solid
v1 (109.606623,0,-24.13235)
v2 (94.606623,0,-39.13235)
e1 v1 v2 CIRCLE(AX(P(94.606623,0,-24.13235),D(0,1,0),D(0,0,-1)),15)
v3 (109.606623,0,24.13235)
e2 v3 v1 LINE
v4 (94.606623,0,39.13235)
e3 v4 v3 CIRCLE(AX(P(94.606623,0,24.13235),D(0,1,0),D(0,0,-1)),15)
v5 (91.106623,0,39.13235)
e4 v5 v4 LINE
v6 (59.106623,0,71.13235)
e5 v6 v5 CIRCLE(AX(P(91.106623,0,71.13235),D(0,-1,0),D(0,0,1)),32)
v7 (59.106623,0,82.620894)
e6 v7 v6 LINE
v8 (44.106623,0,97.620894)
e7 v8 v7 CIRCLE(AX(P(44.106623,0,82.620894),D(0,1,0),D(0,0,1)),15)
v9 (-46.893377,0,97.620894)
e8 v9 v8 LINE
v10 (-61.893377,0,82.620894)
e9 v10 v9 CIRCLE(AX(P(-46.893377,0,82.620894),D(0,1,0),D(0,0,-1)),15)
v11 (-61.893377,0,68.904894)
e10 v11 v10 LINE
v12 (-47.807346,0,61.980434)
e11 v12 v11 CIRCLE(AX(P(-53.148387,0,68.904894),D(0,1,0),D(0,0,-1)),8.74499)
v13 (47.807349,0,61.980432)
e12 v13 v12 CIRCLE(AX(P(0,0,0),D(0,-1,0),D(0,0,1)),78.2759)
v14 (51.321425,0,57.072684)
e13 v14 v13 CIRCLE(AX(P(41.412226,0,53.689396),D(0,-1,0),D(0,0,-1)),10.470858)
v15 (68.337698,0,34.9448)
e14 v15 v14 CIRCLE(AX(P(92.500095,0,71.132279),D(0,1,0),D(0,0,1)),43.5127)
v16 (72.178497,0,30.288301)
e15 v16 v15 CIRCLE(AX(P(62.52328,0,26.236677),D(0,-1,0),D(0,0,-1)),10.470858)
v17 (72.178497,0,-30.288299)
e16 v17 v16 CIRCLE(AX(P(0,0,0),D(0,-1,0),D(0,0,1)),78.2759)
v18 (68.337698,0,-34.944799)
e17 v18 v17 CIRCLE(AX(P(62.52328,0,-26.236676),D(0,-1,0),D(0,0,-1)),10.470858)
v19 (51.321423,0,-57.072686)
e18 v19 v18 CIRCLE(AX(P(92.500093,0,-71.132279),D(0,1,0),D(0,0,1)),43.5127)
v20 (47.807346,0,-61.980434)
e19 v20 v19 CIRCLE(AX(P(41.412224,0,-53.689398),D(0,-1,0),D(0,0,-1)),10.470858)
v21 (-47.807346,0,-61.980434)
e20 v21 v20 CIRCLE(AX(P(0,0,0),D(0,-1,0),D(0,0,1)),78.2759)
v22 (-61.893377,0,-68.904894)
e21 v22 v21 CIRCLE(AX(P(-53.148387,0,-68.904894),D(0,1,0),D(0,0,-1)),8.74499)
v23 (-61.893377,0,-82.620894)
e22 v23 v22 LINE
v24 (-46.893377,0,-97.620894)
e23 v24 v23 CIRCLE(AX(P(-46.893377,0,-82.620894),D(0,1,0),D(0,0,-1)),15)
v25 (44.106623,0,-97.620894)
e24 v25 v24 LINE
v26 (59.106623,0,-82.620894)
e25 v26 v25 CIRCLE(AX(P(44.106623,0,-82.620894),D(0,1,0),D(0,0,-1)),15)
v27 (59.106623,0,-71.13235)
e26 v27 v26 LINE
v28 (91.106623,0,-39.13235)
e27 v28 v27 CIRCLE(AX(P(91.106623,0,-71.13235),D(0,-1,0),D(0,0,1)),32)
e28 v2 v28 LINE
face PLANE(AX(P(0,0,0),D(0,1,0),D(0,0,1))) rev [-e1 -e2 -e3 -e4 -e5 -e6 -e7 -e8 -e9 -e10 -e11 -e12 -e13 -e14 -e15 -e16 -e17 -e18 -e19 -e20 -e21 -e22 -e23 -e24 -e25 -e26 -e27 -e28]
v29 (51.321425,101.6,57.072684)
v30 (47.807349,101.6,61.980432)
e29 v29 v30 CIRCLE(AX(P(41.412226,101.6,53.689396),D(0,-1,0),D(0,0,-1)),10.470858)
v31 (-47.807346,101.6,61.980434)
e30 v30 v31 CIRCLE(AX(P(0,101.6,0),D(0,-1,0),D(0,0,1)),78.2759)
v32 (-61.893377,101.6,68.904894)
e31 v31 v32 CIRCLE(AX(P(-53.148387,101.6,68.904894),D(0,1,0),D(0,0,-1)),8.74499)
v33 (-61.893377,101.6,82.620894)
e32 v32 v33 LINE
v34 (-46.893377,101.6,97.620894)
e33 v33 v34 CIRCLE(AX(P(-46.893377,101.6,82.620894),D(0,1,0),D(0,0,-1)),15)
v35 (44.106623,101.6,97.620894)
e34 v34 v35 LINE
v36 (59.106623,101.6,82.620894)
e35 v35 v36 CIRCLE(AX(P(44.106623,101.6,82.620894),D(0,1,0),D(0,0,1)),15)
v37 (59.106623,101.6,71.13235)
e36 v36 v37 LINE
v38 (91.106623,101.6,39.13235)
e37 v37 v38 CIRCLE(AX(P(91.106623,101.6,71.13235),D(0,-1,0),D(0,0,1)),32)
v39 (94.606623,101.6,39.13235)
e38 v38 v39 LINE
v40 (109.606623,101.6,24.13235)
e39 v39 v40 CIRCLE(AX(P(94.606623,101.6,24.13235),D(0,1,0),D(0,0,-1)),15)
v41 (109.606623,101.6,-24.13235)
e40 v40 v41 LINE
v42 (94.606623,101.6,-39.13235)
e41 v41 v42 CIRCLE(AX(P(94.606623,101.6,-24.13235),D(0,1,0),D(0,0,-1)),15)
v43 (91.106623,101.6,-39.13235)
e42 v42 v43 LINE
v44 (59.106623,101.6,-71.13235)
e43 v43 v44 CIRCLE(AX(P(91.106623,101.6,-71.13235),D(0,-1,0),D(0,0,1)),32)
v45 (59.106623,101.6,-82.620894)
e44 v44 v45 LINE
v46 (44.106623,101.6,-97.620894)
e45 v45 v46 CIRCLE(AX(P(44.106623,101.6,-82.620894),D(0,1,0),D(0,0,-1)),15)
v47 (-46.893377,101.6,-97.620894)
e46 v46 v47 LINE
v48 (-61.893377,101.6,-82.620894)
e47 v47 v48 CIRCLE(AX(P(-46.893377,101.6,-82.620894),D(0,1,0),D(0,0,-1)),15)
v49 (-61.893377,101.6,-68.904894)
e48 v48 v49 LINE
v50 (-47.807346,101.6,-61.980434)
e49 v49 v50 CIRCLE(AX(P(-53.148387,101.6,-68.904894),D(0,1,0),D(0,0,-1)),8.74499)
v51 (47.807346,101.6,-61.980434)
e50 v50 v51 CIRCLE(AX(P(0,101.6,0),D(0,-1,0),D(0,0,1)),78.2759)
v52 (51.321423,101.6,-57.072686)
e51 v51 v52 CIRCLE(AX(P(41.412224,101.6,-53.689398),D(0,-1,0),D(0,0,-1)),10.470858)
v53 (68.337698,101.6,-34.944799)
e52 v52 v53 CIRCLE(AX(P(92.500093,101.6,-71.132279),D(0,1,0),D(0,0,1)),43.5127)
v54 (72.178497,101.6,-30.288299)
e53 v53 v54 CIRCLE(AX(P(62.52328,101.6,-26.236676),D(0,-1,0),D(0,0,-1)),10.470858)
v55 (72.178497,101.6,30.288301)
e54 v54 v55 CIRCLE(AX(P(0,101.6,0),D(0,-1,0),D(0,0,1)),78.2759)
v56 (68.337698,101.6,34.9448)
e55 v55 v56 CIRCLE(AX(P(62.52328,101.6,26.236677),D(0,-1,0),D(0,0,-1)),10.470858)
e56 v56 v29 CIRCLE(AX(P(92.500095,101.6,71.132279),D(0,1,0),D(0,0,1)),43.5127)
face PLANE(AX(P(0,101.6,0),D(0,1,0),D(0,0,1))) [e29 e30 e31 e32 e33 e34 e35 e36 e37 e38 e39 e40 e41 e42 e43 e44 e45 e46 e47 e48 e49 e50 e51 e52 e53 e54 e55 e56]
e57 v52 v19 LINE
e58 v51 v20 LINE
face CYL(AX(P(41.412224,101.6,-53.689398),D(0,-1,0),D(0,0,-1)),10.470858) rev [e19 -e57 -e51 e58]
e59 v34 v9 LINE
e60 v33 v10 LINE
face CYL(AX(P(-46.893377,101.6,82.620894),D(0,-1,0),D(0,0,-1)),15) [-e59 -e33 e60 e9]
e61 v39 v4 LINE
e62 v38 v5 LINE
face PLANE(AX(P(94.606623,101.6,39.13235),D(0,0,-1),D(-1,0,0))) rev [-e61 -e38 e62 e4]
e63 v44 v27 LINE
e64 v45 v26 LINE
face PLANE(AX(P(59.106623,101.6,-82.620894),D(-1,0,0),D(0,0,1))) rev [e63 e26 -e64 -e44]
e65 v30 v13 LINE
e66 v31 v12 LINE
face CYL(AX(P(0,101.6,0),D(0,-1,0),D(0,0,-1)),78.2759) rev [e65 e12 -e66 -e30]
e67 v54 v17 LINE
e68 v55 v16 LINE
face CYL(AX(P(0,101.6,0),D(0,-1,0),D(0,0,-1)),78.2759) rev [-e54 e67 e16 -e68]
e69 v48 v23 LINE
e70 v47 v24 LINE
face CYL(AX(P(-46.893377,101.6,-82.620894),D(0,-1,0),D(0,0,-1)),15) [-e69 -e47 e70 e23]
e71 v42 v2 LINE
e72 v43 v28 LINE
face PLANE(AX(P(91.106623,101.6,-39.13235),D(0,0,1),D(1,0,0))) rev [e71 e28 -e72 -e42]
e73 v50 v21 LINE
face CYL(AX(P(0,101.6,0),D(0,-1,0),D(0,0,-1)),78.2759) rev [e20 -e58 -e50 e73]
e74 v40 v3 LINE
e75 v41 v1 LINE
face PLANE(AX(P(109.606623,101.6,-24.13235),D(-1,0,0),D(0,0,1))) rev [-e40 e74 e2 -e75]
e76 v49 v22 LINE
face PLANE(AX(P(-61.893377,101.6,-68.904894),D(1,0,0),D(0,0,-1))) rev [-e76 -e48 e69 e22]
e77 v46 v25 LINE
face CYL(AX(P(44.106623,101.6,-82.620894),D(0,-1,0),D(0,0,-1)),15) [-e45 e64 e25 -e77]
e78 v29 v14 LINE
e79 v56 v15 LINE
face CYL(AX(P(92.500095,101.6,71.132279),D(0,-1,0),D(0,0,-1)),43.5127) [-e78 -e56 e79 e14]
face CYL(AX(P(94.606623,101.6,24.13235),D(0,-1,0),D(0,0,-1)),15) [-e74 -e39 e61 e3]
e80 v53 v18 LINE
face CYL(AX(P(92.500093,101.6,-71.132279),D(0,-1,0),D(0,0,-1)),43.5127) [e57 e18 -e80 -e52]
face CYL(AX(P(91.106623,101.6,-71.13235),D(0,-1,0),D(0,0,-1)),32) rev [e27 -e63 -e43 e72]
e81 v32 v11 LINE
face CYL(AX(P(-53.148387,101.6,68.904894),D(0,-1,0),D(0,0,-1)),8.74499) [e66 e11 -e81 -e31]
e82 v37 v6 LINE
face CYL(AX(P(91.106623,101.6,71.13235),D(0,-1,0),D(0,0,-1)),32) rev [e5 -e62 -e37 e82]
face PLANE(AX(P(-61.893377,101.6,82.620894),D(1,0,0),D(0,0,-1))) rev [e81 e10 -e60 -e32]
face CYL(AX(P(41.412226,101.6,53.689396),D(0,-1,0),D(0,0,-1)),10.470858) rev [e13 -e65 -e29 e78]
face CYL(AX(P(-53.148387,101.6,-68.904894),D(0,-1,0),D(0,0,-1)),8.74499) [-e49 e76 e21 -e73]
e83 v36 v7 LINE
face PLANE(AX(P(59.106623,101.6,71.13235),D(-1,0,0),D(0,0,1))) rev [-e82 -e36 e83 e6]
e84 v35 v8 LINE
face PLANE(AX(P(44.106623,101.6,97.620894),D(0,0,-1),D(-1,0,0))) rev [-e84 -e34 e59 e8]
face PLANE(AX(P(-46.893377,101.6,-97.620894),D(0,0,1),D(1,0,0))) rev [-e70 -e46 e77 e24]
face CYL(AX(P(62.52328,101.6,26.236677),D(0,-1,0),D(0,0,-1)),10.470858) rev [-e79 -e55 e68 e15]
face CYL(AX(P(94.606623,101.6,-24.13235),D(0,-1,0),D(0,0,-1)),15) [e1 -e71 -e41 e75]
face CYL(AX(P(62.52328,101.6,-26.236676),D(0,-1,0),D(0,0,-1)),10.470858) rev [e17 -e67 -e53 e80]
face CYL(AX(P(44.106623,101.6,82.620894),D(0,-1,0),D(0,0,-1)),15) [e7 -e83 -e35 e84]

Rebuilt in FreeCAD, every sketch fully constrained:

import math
import FreeCAD as App
import Part
import Sketcher
Q = App.Units.Quantity

doc = App.newDocument("Part")
body = doc.addObject("PartDesign::Body", "Body")

# Sketch on XZ plane
sketch1 = body.newObject("Sketcher::SketchObject", "Sketch")
sketch1.AttachmentSupport = (doc.getObject("XZ_Plane"), [""])
sketch1.MapMode = "FlatFace"
sketch1.addGeometry([
    Part.LineSegment(App.Vector(-61.893377, -82.620894, 0), App.Vector(-61.893377, -68.904894, 0)),  # 0
    Part.ArcOfCircle(Part.Circle(App.Vector(-53.148387, -68.904894, 0), App.Vector(0, 0, 1), 8.74499), math.radians(52.355933), math.radians(180)),  # 1
    Part.ArcOfCircle(Part.Circle(App.Vector(0, 0, 0), App.Vector(0, 0, 1), 78.2759), math.radians(-127.644067), math.radians(-52.355933)),  # 2
    Part.ArcOfCircle(Part.Circle(App.Vector(41.412224, -53.689398, 0), App.Vector(0, 0, 1), 10.470858), math.radians(-52.355933), math.radians(-18.851394)),  # 3
    Part.ArcOfCircle(Part.Circle(App.Vector(92.500093, -71.132279, 0), App.Vector(0, 0, 1), 43.5127), math.radians(123.731053), math.radians(161.148606)),  # 4
    Part.ArcOfCircle(Part.Circle(App.Vector(62.52328, -26.236676, 0), App.Vector(0, 0, 1), 10.470858), math.radians(-56.268947), math.radians(-22.764407)),  # 5
    Part.ArcOfCircle(Part.Circle(App.Vector(0, 0, 0), App.Vector(0, 0, 1), 78.2759), math.radians(-22.764407), math.radians(22.764408)),  # 6
    Part.ArcOfCircle(Part.Circle(App.Vector(62.52328, 26.236677, 0), App.Vector(0, 0, 1), 10.470858), math.radians(22.764409), math.radians(56.268944)),  # 7
    Part.ArcOfCircle(Part.Circle(App.Vector(92.500095, 71.132279, 0), App.Vector(0, 0, 1), 43.5127), math.radians(-161.148604), math.radians(-123.731056)),  # 8
    Part.ArcOfCircle(Part.Circle(App.Vector(41.412226, 53.689396, 0), App.Vector(0, 0, 1), 10.470858), math.radians(18.851396), math.radians(52.355931)),  # 9
    Part.ArcOfCircle(Part.Circle(App.Vector(0, 0, 0), App.Vector(0, 0, 1), 78.2759), math.radians(52.355931), math.radians(127.644067)),  # 10
    Part.ArcOfCircle(Part.Circle(App.Vector(-53.148387, 68.904894, 0), App.Vector(0, 0, 1), 8.74499), math.radians(180), math.radians(307.644067)),  # 11
    Part.LineSegment(App.Vector(-61.893377, 68.904894, 0), App.Vector(-61.893377, 82.620894, 0)),  # 12
    Part.ArcOfCircle(Part.Circle(App.Vector(-46.893377, 82.620894, 0), App.Vector(0, 0, 1), 15), math.radians(90), math.radians(180)),  # 13
    Part.LineSegment(App.Vector(-46.893377, 97.620894, 0), App.Vector(44.106623, 97.620894, 0)),  # 14
    Part.ArcOfCircle(Part.Circle(App.Vector(44.106623, 82.620894, 0), App.Vector(0, 0, 1), 15), math.radians(0), math.radians(90)),  # 15
    Part.LineSegment(App.Vector(59.106623, 82.620894, 0), App.Vector(59.106623, 71.13235, 0)),  # 16
    Part.ArcOfCircle(Part.Circle(App.Vector(91.106623, 71.13235, 0), App.Vector(0, 0, 1), 32), math.radians(180), math.radians(270)),  # 17
    Part.LineSegment(App.Vector(91.106623, 39.13235, 0), App.Vector(94.606623, 39.13235, 0)),  # 18
    Part.ArcOfCircle(Part.Circle(App.Vector(94.606623, 24.13235, 0), App.Vector(0, 0, 1), 15), math.radians(0), math.radians(90)),  # 19
    Part.LineSegment(App.Vector(109.606623, 24.13235, 0), App.Vector(109.606623, -24.13235, 0)),  # 20
    Part.ArcOfCircle(Part.Circle(App.Vector(94.606623, -24.13235, 0), App.Vector(0, 0, 1), 15), math.radians(-90), math.radians(0)),  # 21
    Part.LineSegment(App.Vector(94.606623, -39.13235, 0), App.Vector(91.106623, -39.13235, 0)),  # 22
    Part.ArcOfCircle(Part.Circle(App.Vector(91.106623, -71.13235, 0), App.Vector(0, 0, 1), 32), math.radians(90), math.radians(180)),  # 23
    Part.LineSegment(App.Vector(59.106623, -71.13235, 0), App.Vector(59.106623, -82.620894, 0)),  # 24
    Part.ArcOfCircle(Part.Circle(App.Vector(44.106623, -82.620894, 0), App.Vector(0, 0, 1), 15), math.radians(-90), math.radians(0)),  # 25
    Part.LineSegment(App.Vector(44.106623, -97.620894, 0), App.Vector(-46.893377, -97.620894, 0)),  # 26
    Part.ArcOfCircle(Part.Circle(App.Vector(-46.893377, -82.620894, 0), App.Vector(0, 0, 1), 15), math.radians(180), math.radians(270)),  # 27
], False)
sketch1.addConstraint([
    Sketcher.Constraint("Tangent", 0, 2, 1, 2),
    Sketcher.Constraint("Tangent", 1, 1, 2, 1),
    Sketcher.Constraint("Tangent", 2, 2, 3, 1),
    Sketcher.Constraint("Tangent", 3, 2, 4, 2),
    Sketcher.Constraint("Tangent", 4, 1, 5, 1),
    Sketcher.Constraint("Tangent", 5, 2, 6, 1),
    Sketcher.Constraint("Tangent", 6, 2, 7, 1),
    Sketcher.Constraint("Tangent", 7, 2, 8, 2),
    Sketcher.Constraint("Tangent", 8, 1, 9, 1),
    Sketcher.Constraint("Tangent", 9, 2, 10, 1),
    Sketcher.Constraint("Tangent", 10, 2, 11, 2),
    Sketcher.Constraint("Tangent", 11, 1, 12, 1),
    Sketcher.Constraint("Tangent", 12, 2, 13, 2),
    Sketcher.Constraint("Tangent", 13, 1, 14, 1),
    Sketcher.Constraint("Tangent", 14, 2, 15, 2),
    Sketcher.Constraint("Tangent", 15, 1, 16, 1),
    Sketcher.Constraint("Tangent", 16, 2, 17, 1),
    Sketcher.Constraint("Tangent", 17, 2, 18, 1),
    Sketcher.Constraint("Tangent", 18, 2, 19, 2),
    Sketcher.Constraint("Tangent", 19, 1, 20, 1),
    Sketcher.Constraint("Tangent", 20, 2, 21, 2),
    Sketcher.Constraint("Tangent", 21, 1, 22, 1),
    Sketcher.Constraint("Tangent", 22, 2, 23, 1),
    Sketcher.Constraint("Tangent", 23, 2, 24, 1),
    Sketcher.Constraint("Tangent", 24, 2, 25, 2),
    Sketcher.Constraint("Tangent", 25, 1, 26, 1),
    Sketcher.Constraint("Tangent", 26, 2, 27, 2),
    Sketcher.Constraint("Tangent", 27, 1, 0, 1),
    Sketcher.Constraint("Vertical", 0),
    Sketcher.Constraint("Vertical", 12),
    Sketcher.Constraint("Horizontal", 14),
    Sketcher.Constraint("Vertical", 16),
    Sketcher.Constraint("Horizontal", 18),
    Sketcher.Constraint("Vertical", 20),
    Sketcher.Constraint("Horizontal", 22),
    Sketcher.Constraint("Vertical", 24),
    Sketcher.Constraint("Horizontal", 26),
    Sketcher.Constraint("Coincident", 2, 3, -1, 1),
    Sketcher.Constraint("Coincident", 6, 3, -1, 1),
    Sketcher.Constraint("Coincident", 10, 3, -1, 1),
    Sketcher.Constraint("Equal", 3, 5),
    Sketcher.Constraint("Equal", 2, 6),
    Sketcher.Constraint("Equal", 5, 7),
    Sketcher.Constraint("Equal", 4, 8),
    Sketcher.Constraint("Equal", 7, 9),
    Sketcher.Constraint("Equal", 6, 10),
    Sketcher.Constraint("Equal", 1, 11),
    Sketcher.Constraint("Equal", 13, 15),
    Sketcher.Constraint("Equal", 15, 19),
    Sketcher.Constraint("Equal", 19, 21),
    Sketcher.Constraint("Equal", 17, 23),
    Sketcher.Constraint("Equal", 21, 25),
    Sketcher.Constraint("Equal", 25, 27),
    Sketcher.Constraint("Symmetric", 4, 3, 8, 3, -1),
    Sketcher.Constraint("Symmetric", 17, 3, 23, 3, -1),
    Sketcher.Constraint("Symmetric", 13, 3, 27, 3, -1),
    Sketcher.Constraint("Horizontal", 1, 1, 2, 2),
    Sketcher.Constraint("Radius", 13, Q("15 mm")),
    Sketcher.Constraint("Radius", 17, Q("32 mm")),
    Sketcher.Constraint("DistanceX", 14, 1, 14, 2, Q("91 mm")),
    Sketcher.Constraint("DistanceX", 18, 1, 18, 2, Q("3.5 mm")),
    Sketcher.Constraint("Radius", 2, Q("78.2759 mm")),
    Sketcher.Constraint("Radius", 4, Q("43.5127 mm")),
    Sketcher.Constraint("DistanceY", 0, 1, 0, 2, Q("13.716 mm")),
    Sketcher.Constraint("Radius", 1, Q("8.74499 mm")),
    Sketcher.Constraint("Radius", 3, Q("10.470858 mm")),
    Sketcher.Constraint("DistanceY", 20, 2, 20, 1, Q("48.2647 mm")),
    Sketcher.Constraint("DistanceY", 4, 1, -1, 1, Q("34.944799 mm")),
    Sketcher.Constraint("DistanceY", 7, 3, 8, 3, Q("44.895602 mm")),
])
pad1 = body.newObject("PartDesign::Pad", "Pad")
pad1.Profile = sketch1
pad1.Length = 101.6
pad1.Reversed = True

doc.recompute()
